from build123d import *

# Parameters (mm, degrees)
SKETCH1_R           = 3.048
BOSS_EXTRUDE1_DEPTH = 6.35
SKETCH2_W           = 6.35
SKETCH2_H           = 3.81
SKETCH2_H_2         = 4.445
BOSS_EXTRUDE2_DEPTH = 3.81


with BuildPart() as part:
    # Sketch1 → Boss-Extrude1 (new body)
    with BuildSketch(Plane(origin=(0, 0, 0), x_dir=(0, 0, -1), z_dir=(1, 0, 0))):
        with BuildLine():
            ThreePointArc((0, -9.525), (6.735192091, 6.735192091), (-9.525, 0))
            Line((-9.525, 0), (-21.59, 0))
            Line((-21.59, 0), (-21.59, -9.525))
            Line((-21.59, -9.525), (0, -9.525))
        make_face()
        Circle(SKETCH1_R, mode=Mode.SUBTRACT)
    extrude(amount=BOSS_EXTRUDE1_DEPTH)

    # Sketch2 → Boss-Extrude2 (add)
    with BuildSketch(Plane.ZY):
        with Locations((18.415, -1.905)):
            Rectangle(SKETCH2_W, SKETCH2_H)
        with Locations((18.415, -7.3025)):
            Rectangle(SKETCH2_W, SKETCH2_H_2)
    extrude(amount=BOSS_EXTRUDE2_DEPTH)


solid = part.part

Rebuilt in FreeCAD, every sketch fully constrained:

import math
import FreeCAD as App
import Part
import Sketcher

V = App.Vector
Q = App.Units.Quantity


def add_polygon(sketch, points):
    """Adds a closed chain of lines whose ends are joined by coincident constraints."""
    first, n = sketch.GeometryCount, len(points)
    for a, b in zip(points, points[1:] + points[:1]):
        sketch.addGeometry(Part.LineSegment(App.Vector(*a, 0), App.Vector(*b, 0)), False)
    for i in range(n):
        sketch.addConstraint(Sketcher.Constraint("Coincident", first + i, 2, first + (i + 1) % n, 1))

doc = App.newDocument("Part")
params = doc.addObject("Spreadsheet::Sheet", "Params")
for row, (alias, value) in enumerate([
    ("sketch1_diameter", "0.24 in"),
    ("sketch1_radius", "0.375 in"),
    ("sketch1_height", "0.85 in"),
    ("pad1_length", "0.25 in"),
    ("sketch2_width", "0.15 in"),
    ("sketch2_height", "0.25 in"),
    ("sketch2_width2", "0.175 in"),
    ("pad2_length", "0.15 in"),
], start=1):
    params.set(f"A{row}", alias)
    params.set(f"B{row}", "=" + value)
    params.setAlias(f"B{row}", alias)

body = doc.addObject("PartDesign::Body", "Body")

# Sketch on YZ plane
sketch1 = body.newObject("Sketcher::SketchObject", "Sketch")
sketch1.AttachmentSupport = (doc.getObject("YZ_Plane"), [""])
sketch1.MapMode = "FlatFace"
sketch1.addGeometry([
    Part.ArcOfCircle(Part.Circle(V(0, 0, 0), V(0, 0, 1), 9.5), math.radians(180), math.radians(450)),  # 0
    Part.LineSegment(V(0, 9.5, 0), V(0, 21.6, 0)),  # 1
    Part.LineSegment(V(0, 21.6, 0), V(-9.5, 21.6, 0)),  # 2
    Part.LineSegment(V(-9.5, 21.6, 0), V(-9.5, 0, 0)),  # 3
    Part.Circle(V(0, 0, 0), V(0, 0, 1), 3),  # 4
], False)
sketch1.addConstraint([
    Sketcher.Constraint("Coincident", 0, 2, 1, 1),
    Sketcher.Constraint("Coincident", 1, 2, 2, 1),
    Sketcher.Constraint("Coincident", 2, 2, 3, 1),
    Sketcher.Constraint("Tangent", 3, 2, 0, 1),
    Sketcher.Constraint("Vertical", 1),
    Sketcher.Constraint("Horizontal", 2),
    Sketcher.Constraint("Vertical", 3),
    Sketcher.Constraint("Coincident", 0, 3, -1, 1),
    Sketcher.Constraint("Coincident", 4, 3, -1, 1),
    Sketcher.Constraint("PointOnObject", 0, 2, -2),
    Sketcher.Constraint("Diameter", 4, Q("0.24 in")),
    Sketcher.Constraint("Radius", 0, Q("0.375 in")),
    Sketcher.Constraint("DistanceY", 3, 2, 3, 1, Q("0.85 in")),
])
sketch1.setExpression("Constraints[10]", "Params.sketch1_diameter")
sketch1.setExpression("Constraints[11]", "Params.sketch1_radius")
sketch1.setExpression("Constraints[12]", "Params.sketch1_height")
pad1 = body.newObject("PartDesign::Pad", "Pad")
pad1.Profile = sketch1
pad1.setExpression("Length", "Params.pad1_length")

# Sketch on YZ plane
sketch2 = body.newObject("Sketcher::SketchObject", "Sketch001")
sketch2.AttachmentSupport = (doc.getObject("YZ_Plane"), [""])
sketch2.MapMode = "FlatFace"
add_polygon(sketch2, [(0, 15.2), (-3.8, 15.2), (-3.8, 21.6), (0, 21.6)])  # lines 0-3
add_polygon(sketch2, [(-5.1, 15.2), (-9.5, 15.2), (-9.5, 21.6), (-5.1, 21.6)])  # lines 4-7
sketch2.addConstraint([
    Sketcher.Constraint("Horizontal", 0),
    Sketcher.Constraint("Vertical", 1),
    Sketcher.Constraint("Horizontal", 2),
    Sketcher.Constraint("Vertical", 3),
    Sketcher.Constraint("Horizontal", 4),
    Sketcher.Constraint("Vertical", 5),
    Sketcher.Constraint("Horizontal", 6),
    Sketcher.Constraint("Vertical", 7),
    Sketcher.Constraint("PointOnObject", 2, 2, -2),
    Sketcher.Constraint("Horizontal", 3, 2, 4, 2),
    Sketcher.Constraint("Horizontal", 2, 2, 5, 2),
    Sketcher.Constraint("DistanceX", 0, 2, 0, 1, Q("0.15 in")),
    Sketcher.Constraint("DistanceY", 1, 1, 1, 2, Q("0.25 in")),
    Sketcher.Constraint("DistanceY", -1, 1, 0, 2, Q("0.6 in")),
    Sketcher.Constraint("DistanceX", 6, 2, -1, 1, Q("0.2 in")),
    Sketcher.Constraint("DistanceX", 4, 2, 4, 1, Q("0.175 in")),
])
sketch2.setExpression("Constraints[19]", "Params.sketch2_width")
sketch2.setExpression("Constraints[20]", "Params.sketch2_height")
sketch2.setExpression("Constraints[23]", "Params.sketch2_width2")
pad2 = body.newObject("PartDesign::Pad", "Pad001")
pad2.Profile = sketch2
pad2.setExpression("Length", "Params.pad2_length")
pad2.Reversed = True

doc.recompute()
